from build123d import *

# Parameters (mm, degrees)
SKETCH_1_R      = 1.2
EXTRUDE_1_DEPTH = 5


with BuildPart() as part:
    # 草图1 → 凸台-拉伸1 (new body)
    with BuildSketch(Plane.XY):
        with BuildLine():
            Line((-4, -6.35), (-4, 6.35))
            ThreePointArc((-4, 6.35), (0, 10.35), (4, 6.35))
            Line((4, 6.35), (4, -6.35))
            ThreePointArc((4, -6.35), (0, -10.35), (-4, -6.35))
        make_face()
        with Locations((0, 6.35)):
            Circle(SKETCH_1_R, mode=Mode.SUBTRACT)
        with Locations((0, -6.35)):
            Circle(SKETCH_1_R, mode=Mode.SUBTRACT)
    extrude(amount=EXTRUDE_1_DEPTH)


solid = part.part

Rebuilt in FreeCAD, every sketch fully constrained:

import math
import FreeCAD as App
import Part
import Sketcher
from FreeCAD import Vector
Q = App.Units.Quantity

doc = App.newDocument("Part")
body = doc.addObject("PartDesign::Body", "Body")

sketch1 = doc.addObject("Sketcher::SketchObject", "Sketch")
body.addObject(sketch1)
sketch1.AttachmentSupport = (doc.XY_Plane, [""])
sketch1.MapMode = "FlatFace"
sketch1.addGeometry(Part.LineSegment(Vector(-4, 6.35, 0), Vector(-4, -6.35, 0)), False)
sketch1.addGeometry(Part.ArcOfCircle(Part.Circle(Vector(0, -6.35, 0), Vector(0, 0, 1), 4), math.radians(180), math.radians(360)), False)
sketch1.addGeometry(Part.LineSegment(Vector(4, -6.35, 0), Vector(4, 6.35, 0)), False)
sketch1.addGeometry(Part.ArcOfCircle(Part.Circle(Vector(0, 6.35, 0), Vector(0, 0, 1), 4), math.radians(0), math.radians(180)), False)
sketch1.addGeometry(Part.Circle(Vector(0, -6.35, 0), Vector(0, 0, 1), 1.2), False)
sketch1.addGeometry(Part.Circle(Vector(0, 6.35, 0), Vector(0, 0, 1), 1.2), False)
sketch1.addConstraint(Sketcher.Constraint("Tangent", 0, 2, 1, 1))
sketch1.addConstraint(Sketcher.Constraint("Tangent", 1, 2, 2, 1))
sketch1.addConstraint(Sketcher.Constraint("Tangent", 2, 2, 3, 1))
sketch1.addConstraint(Sketcher.Constraint("Tangent", 3, 2, 0, 1))
sketch1.addConstraint(Sketcher.Constraint("Vertical", 0))
sketch1.addConstraint(Sketcher.Constraint("Vertical", 2))
sketch1.addConstraint(Sketcher.Constraint("Coincident", 4, 3, 1, 3))
sketch1.addConstraint(Sketcher.Constraint("Coincident", 5, 3, 3, 3))
sketch1.addConstraint(Sketcher.Constraint("Equal", 4, 5))
sketch1.addConstraint(Sketcher.Constraint("Symmetric", 1, 3, 3, 3, -1, 1))
sketch1.addConstraint(Sketcher.Constraint("Radius", 1, Q("4 mm")))
sketch1.addConstraint(Sketcher.Constraint("Diameter", 4, Q("2.4 mm")))
sketch1.addConstraint(Sketcher.Constraint("DistanceY", 0, 2, 0, 1, Q("12.7 mm")))
pad1 = doc.addObject("PartDesign::Pad", "Pad")
body.addObject(pad1)
pad1.Profile = sketch1
pad1.Length = 5

doc.recompute()
